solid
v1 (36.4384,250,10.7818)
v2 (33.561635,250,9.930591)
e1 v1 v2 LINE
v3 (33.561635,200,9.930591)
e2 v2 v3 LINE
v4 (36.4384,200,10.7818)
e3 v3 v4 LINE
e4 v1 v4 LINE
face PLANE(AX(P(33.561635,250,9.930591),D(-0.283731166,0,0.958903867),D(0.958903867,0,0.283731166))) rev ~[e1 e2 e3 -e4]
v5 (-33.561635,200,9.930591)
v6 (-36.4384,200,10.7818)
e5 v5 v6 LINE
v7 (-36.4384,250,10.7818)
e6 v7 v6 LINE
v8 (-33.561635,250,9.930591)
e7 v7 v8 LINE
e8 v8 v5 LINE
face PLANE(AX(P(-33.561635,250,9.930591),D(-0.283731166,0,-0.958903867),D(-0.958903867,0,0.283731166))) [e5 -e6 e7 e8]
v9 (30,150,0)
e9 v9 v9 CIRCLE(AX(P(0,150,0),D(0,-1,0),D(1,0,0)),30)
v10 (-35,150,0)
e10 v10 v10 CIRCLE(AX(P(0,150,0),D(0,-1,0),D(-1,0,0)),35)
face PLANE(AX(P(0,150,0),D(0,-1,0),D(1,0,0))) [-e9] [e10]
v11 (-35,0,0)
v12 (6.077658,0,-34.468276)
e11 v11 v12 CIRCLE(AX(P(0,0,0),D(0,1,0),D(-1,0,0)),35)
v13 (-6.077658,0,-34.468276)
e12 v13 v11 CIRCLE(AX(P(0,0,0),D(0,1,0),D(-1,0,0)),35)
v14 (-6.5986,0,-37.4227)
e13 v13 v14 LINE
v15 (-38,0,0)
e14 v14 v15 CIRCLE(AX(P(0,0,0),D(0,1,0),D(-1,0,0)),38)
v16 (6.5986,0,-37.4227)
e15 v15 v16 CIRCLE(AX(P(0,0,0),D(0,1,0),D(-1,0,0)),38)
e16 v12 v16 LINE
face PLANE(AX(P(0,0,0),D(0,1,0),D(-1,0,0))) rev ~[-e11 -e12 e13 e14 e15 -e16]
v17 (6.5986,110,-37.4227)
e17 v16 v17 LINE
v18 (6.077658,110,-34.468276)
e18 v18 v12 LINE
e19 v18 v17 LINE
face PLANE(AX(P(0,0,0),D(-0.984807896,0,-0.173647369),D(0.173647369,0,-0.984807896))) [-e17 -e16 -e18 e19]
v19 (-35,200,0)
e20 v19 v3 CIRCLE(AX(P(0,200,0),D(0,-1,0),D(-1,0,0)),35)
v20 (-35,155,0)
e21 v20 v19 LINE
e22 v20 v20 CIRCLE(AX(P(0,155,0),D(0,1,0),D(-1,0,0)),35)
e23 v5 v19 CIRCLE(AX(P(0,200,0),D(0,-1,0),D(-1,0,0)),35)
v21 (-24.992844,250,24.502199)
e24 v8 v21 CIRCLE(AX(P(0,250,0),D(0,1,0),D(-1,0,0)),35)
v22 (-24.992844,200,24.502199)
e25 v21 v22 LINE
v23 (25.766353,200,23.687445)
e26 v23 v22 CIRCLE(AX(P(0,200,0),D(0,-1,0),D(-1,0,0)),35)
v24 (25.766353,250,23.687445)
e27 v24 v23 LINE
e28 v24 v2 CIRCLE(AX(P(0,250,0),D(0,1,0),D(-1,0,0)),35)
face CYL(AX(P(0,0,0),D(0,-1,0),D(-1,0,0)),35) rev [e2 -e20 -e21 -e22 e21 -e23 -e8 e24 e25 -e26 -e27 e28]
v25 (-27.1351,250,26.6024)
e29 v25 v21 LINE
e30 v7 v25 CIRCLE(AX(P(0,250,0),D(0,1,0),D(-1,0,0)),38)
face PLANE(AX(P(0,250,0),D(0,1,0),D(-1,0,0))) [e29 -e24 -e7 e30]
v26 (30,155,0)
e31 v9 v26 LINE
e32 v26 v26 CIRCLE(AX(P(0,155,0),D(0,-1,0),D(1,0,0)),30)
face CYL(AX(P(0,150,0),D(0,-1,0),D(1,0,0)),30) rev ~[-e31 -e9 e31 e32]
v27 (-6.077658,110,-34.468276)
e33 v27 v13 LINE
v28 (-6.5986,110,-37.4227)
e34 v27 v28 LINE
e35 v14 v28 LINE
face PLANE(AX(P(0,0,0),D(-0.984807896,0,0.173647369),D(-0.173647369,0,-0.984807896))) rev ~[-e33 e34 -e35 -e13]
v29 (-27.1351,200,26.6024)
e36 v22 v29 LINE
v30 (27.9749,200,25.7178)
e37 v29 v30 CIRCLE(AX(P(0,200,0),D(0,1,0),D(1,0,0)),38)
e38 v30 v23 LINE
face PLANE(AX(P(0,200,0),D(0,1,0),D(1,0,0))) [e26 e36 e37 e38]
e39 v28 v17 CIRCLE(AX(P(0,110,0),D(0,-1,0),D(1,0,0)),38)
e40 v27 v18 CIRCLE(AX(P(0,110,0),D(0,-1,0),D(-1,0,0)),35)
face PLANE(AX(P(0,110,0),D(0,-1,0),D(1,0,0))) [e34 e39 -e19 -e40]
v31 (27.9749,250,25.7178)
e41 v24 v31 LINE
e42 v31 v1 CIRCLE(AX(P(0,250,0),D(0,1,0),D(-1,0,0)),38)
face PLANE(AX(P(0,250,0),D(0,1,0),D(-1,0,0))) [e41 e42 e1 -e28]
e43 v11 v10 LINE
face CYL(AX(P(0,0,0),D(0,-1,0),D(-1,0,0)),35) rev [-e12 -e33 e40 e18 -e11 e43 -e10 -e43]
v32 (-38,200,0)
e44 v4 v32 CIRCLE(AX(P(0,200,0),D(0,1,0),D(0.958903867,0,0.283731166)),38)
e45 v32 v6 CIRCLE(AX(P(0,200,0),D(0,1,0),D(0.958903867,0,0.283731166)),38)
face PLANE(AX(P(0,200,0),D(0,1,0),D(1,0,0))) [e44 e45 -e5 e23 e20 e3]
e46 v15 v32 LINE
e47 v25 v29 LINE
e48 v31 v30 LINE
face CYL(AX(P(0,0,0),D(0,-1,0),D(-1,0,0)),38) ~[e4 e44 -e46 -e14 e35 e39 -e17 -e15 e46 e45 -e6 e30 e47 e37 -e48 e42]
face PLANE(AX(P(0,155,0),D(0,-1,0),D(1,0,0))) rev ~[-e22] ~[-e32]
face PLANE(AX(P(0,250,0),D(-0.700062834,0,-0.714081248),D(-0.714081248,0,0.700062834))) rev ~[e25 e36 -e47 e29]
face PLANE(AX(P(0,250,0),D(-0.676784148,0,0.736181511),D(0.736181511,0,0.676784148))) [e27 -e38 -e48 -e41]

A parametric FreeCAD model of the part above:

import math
import FreeCAD as App
import Part
import Sketcher
Q = App.Units.Quantity

doc = App.newDocument("Part")
body = doc.addObject("PartDesign::Body", "Body")

sketch1 = body.newObject("Sketcher::SketchObject", "Sketch")
sketch1.AttachmentSupport = (doc.getObject("XZ_Plane"), [""])
sketch1.MapMode = "FlatFace"
sketch1.addGeometry([
    Part.Circle(App.Vector(0, 0, 0), App.Vector(0, 0, 1), 38),
    Part.Circle(App.Vector(0, 0, 0), App.Vector(0, 0, 1), 35),
], False)
sketch1.addConstraint([
    Sketcher.Constraint("Coincident", 0, 3, -1, 1),
    Sketcher.Constraint("Coincident", 1, 3, -1, 1),
    Sketcher.Constraint("Diameter", 0, Q("76 mm")),
    Sketcher.Constraint("Diameter", 1, Q("70 mm")),
])
pad1 = body.newObject("PartDesign::Pad", "Pad")
pad1.Profile = sketch1
pad1.Length = 250
pad1.Reversed = True

sketch2 = body.newObject("Sketcher::SketchObject", "Sketch001")
sketch2.AttachmentSupport = (doc.getObject("XZ_Plane"), [""])
sketch2.MapMode = "FlatFace"
sketch2.AttachmentOffset = App.Placement(App.Vector(0, 0, -250), App.Rotation())
sketch2.addGeometry([
    Part.ArcOfCircle(Part.Circle(App.Vector(0, 0, 0), App.Vector(0, 0, 1), 38), math.radians(164), math.radians(376)),
    Part.LineSegment(App.Vector(-36, 11, 0), App.Vector(0, 0, 0)),
    Part.LineSegment(App.Vector(0, 0, 0), App.Vector(36, 11, 0)),
    Part.ArcOfCircle(Part.Circle(App.Vector(0, 0, 0), App.Vector(0, 0, 1), 38), math.radians(43), math.radians(136)),
    Part.LineSegment(App.Vector(28, 26, 0), App.Vector(0, 0, 0)),
    Part.LineSegment(App.Vector(0, 0, 0), App.Vector(-27, 27, 0)),
], False)
sketch2.addConstraint([
    Sketcher.Constraint("Coincident", 0, 1, 1, 1),
    Sketcher.Constraint("Coincident", 1, 2, 2, 1),
    Sketcher.Constraint("Coincident", 2, 2, 0, 2),
    Sketcher.Constraint("Coincident", 3, 1, 4, 1),
    Sketcher.Constraint("Coincident", 4, 2, 5, 1),
    Sketcher.Constraint("Coincident", 5, 2, 3, 2),
    Sketcher.Constraint("Coincident", 0, 3, -1, 1),
    Sketcher.Constraint("Coincident", 3, 3, -1, 1),
    Sketcher.Constraint("Coincident", 1, 2, -1, 1),
    Sketcher.Constraint("Coincident", 4, 2, -1, 1),
    Sketcher.Constraint("Equal", 0, 3),
    Sketcher.Constraint("Horizontal", 0, 1, 2, 2),
    Sketcher.Constraint("Radius", 0, Q("38 mm")),
    Sketcher.Constraint("DistanceX", -1, 1, 3, 1, Q("27.975 mm")),
    Sketcher.Constraint("DistanceX", 5, 2, -1, 1, Q("27.135 mm")),
    Sketcher.Constraint("DistanceY", 2, 2, 3, 1, Q("14.936 mm")),
])
pocket1 = body.newObject("PartDesign::Pocket", "Pocket")
pocket1.Profile = sketch2
pocket1.Length = 50
pocket1.Reversed = True

sketch3 = body.newObject("Sketcher::SketchObject", "Sketch002")
sketch3.AttachmentSupport = (doc.getObject("XZ_Plane"), [""])
sketch3.MapMode = "FlatFace"
sketch3.AttachmentOffset = App.Placement(App.Vector(0, 0, -150), App.Rotation())
sketch3.addGeometry([
    Part.Circle(App.Vector(0, 0, 0), App.Vector(0, 0, 1), 35),
    Part.Circle(App.Vector(0, 0, 0), App.Vector(0, 0, 1), 30),
], False)
sketch3.addConstraint([
    Sketcher.Constraint("Coincident", 0, 3, -1, 1),
    Sketcher.Constraint("Coincident", 1, 3, -1, 1),
    Sketcher.Constraint("Diameter", 0, Q("70 mm")),
    Sketcher.Constraint("Diameter", 1, Q("60 mm")),
])
pad2 = body.newObject("PartDesign::Pad", "Pad001")
pad2.Profile = sketch3
pad2.Length = 5
pad2.Reversed = True

sketch4 = body.newObject("Sketcher::SketchObject", "Sketch003")
sketch4.AttachmentSupport = (doc.getObject("XZ_Plane"), [""])
sketch4.MapMode = "FlatFace"
sketch4.addGeometry([
    Part.LineSegment(App.Vector(0, 0, 0), App.Vector(-7, -37, 0)),
    Part.ArcOfCircle(Part.Circle(App.Vector(0, 0, 0), App.Vector(0, 0, 1), 38), math.radians(-100), math.radians(-80)),
    Part.LineSegment(App.Vector(7, -37, 0), App.Vector(0, 0, 0)),
], False)
sketch4.addConstraint([
    Sketcher.Constraint("Coincident", 0, 2, 1, 1),
    Sketcher.Constraint("Coincident", 1, 2, 2, 1),
    Sketcher.Constraint("Coincident", 2, 2, 0, 1),
    Sketcher.Constraint("Coincident", 1, 3, -1, 1),
    Sketcher.Constraint("Coincident", 2, 2, -1, 1),
    Sketcher.Constraint("Horizontal", 0, 2, 1, 2),
    Sketcher.Constraint("Angle", 0, Q("-100 deg")),
    Sketcher.Constraint("Radius", 1, Q("38 mm")),
])
pocket2 = body.newObject("PartDesign::Pocket", "Pocket001")
pocket2.Profile = sketch4
pocket2.Length = 110

doc.recompute()
